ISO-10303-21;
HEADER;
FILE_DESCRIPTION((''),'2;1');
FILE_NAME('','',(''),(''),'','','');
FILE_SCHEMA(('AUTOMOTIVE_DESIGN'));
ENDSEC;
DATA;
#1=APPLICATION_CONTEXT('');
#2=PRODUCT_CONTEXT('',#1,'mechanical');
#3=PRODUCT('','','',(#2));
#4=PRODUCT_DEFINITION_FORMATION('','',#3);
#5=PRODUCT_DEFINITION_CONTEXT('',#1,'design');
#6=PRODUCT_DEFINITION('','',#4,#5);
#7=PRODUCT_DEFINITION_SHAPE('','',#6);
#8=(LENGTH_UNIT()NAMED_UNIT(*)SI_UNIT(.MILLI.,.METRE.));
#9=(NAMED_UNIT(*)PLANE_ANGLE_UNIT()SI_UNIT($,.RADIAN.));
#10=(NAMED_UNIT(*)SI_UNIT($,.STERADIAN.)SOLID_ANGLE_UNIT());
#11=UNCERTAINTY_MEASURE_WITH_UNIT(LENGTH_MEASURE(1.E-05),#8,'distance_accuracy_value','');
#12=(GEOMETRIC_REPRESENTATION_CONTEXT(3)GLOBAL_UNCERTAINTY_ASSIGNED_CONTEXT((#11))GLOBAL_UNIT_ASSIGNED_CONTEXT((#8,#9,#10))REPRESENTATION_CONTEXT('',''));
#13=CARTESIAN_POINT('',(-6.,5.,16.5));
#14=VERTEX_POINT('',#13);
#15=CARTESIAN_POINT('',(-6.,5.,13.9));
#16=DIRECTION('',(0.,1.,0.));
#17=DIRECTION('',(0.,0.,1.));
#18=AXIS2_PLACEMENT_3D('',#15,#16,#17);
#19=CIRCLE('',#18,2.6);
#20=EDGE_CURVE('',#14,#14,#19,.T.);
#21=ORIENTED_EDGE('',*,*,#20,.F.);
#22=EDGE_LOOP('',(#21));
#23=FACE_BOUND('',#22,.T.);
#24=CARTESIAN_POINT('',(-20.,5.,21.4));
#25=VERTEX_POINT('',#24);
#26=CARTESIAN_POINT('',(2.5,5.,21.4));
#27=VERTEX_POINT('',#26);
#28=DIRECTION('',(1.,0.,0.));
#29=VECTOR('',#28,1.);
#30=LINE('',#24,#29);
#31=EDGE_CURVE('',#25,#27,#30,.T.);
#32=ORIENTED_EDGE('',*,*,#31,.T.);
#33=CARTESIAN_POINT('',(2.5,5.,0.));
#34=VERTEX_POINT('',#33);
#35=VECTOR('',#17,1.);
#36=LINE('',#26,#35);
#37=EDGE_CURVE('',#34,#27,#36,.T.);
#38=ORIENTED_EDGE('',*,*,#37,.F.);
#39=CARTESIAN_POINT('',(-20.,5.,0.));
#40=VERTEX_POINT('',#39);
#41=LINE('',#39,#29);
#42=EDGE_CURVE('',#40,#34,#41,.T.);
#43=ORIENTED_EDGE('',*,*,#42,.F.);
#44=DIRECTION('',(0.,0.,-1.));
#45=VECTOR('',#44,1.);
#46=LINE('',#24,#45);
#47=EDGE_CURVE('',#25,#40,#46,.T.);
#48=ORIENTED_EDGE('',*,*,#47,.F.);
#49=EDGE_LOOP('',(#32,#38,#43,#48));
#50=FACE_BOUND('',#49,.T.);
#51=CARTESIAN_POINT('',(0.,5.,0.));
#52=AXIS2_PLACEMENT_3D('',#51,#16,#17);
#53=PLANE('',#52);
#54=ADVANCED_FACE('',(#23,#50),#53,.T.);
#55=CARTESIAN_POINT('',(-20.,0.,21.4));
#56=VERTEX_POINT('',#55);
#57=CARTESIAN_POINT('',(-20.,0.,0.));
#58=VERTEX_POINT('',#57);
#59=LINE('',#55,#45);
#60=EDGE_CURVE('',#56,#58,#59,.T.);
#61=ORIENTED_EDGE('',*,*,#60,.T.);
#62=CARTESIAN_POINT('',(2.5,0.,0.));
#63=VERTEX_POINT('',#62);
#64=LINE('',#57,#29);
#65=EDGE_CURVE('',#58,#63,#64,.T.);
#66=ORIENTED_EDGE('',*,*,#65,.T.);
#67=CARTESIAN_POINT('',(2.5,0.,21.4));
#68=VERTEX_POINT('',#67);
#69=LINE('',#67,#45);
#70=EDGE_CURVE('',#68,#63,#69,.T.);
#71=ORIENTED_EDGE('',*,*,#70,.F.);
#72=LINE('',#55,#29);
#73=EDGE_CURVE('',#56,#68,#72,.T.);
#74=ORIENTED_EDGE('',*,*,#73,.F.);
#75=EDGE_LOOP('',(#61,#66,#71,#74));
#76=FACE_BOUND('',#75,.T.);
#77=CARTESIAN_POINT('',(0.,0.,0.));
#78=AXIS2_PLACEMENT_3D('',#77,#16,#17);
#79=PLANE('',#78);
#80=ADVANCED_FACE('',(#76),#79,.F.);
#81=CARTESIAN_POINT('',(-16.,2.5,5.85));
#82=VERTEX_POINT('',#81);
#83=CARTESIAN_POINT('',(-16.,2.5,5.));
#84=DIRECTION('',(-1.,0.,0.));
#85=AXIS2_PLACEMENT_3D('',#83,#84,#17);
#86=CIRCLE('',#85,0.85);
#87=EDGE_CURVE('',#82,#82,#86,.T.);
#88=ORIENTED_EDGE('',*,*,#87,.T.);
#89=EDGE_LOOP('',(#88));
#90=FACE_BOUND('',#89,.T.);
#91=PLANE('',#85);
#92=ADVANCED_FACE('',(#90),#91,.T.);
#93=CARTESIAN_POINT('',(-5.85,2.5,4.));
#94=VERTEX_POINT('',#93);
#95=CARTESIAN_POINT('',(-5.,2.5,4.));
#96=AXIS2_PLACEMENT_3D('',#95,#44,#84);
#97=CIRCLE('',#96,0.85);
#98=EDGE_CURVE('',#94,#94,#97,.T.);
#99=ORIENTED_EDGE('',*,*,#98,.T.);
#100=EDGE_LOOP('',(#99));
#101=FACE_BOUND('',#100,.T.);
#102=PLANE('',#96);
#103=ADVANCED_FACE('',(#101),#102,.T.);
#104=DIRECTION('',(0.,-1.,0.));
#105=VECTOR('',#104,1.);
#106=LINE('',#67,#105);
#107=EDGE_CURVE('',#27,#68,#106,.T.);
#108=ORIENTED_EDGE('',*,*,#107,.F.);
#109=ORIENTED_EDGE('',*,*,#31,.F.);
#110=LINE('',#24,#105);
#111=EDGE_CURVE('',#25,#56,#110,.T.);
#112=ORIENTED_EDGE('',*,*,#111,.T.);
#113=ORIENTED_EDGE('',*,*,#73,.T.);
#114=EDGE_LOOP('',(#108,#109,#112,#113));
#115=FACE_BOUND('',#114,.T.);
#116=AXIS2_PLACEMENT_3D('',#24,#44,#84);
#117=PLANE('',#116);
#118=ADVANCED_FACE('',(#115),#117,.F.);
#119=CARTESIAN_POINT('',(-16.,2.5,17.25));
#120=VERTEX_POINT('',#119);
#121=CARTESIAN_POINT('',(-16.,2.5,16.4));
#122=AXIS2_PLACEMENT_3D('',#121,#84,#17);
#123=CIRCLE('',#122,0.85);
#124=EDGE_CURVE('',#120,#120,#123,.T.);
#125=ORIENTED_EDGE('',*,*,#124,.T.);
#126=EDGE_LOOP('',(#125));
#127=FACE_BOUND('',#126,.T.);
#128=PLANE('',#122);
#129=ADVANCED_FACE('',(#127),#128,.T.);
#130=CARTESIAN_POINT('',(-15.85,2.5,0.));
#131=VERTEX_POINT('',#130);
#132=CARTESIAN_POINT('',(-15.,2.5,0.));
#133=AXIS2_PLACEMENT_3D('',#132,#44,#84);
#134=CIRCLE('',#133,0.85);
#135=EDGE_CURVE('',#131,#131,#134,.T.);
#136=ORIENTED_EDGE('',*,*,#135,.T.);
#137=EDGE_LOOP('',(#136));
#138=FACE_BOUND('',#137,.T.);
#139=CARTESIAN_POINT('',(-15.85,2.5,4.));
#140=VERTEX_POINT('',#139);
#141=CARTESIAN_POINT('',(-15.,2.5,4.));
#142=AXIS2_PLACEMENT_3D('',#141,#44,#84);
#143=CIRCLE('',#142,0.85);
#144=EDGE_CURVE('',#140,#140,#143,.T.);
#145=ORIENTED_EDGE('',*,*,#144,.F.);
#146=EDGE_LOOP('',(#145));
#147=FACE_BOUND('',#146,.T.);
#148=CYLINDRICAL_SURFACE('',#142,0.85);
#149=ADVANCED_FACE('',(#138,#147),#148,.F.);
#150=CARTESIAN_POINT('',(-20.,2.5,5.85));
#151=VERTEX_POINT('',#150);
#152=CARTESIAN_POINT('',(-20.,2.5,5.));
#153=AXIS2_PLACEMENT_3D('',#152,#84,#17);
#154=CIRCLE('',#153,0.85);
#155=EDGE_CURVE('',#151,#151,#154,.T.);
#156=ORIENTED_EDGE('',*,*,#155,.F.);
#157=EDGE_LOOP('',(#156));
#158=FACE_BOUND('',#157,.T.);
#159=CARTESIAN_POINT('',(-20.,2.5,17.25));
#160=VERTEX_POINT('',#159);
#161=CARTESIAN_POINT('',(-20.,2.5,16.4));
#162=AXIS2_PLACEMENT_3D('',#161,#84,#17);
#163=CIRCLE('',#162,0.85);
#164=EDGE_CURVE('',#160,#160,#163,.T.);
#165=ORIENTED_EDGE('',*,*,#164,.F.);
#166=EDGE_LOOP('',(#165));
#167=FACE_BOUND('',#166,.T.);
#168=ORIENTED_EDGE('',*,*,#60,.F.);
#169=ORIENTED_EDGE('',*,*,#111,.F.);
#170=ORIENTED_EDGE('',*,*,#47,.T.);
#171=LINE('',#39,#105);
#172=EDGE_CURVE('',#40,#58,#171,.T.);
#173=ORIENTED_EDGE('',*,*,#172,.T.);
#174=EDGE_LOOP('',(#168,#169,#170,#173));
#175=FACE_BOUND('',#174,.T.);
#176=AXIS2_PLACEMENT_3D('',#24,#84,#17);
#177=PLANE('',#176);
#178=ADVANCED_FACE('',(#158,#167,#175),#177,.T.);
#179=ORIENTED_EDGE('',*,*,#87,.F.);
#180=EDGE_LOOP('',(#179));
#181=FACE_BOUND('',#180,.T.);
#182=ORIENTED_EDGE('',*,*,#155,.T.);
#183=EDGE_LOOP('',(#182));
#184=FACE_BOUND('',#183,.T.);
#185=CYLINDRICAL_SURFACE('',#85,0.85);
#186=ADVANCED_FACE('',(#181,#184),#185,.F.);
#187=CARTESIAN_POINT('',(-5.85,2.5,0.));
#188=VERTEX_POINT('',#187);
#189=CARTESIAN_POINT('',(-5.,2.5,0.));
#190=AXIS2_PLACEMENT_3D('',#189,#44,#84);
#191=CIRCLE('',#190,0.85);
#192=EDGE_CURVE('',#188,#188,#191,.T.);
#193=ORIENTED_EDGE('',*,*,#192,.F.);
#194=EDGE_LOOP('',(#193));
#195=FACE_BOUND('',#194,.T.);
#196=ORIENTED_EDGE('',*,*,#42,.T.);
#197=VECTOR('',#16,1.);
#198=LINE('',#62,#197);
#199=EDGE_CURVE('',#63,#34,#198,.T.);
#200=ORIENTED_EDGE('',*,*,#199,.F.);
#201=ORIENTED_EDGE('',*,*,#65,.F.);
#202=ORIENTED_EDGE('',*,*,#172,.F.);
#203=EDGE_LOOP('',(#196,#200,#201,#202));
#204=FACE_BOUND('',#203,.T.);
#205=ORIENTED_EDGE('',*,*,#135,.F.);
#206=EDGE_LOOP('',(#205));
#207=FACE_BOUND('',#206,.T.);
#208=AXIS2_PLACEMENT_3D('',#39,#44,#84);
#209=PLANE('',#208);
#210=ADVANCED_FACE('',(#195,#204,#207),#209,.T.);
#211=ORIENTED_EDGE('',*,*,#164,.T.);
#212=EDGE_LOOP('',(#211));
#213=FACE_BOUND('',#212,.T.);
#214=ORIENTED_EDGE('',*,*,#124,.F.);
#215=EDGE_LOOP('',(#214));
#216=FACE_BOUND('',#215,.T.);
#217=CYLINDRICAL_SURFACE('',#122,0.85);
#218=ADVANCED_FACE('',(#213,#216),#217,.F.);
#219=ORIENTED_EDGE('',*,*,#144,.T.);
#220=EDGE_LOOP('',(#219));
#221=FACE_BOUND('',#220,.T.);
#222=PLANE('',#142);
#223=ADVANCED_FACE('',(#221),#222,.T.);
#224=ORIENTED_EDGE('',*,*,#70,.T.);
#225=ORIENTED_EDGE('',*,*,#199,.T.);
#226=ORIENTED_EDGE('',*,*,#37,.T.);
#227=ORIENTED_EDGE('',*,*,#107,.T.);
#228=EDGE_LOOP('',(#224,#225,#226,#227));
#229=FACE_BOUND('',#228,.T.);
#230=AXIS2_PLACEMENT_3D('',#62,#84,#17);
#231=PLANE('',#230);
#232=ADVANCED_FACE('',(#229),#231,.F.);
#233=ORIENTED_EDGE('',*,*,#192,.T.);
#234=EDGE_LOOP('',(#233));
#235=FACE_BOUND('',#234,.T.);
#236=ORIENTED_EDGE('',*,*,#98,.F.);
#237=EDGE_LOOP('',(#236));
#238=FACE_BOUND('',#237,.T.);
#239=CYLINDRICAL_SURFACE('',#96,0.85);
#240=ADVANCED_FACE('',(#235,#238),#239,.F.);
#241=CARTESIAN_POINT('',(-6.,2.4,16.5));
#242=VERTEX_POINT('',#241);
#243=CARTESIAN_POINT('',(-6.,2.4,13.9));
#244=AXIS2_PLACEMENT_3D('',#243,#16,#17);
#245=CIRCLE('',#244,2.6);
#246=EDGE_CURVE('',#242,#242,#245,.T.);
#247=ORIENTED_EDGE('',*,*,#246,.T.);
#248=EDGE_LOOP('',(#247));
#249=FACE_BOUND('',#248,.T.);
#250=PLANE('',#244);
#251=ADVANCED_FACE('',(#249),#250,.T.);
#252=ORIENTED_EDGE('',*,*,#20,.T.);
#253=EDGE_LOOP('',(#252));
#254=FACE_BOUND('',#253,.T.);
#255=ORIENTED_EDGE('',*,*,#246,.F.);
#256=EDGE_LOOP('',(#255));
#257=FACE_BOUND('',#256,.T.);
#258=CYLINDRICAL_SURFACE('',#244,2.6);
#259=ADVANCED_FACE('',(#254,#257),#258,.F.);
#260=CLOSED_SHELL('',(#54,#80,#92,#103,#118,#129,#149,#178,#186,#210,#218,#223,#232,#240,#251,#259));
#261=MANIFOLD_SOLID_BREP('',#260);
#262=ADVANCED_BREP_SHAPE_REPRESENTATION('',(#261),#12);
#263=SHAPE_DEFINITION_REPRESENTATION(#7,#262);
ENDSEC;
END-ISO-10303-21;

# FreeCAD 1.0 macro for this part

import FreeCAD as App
import Part
import Sketcher


def add_polygon(sketch, points):
    """Adds a closed chain of lines whose ends are joined by coincident constraints."""
    first, n = sketch.GeometryCount, len(points)
    for a, b in zip(points, points[1:] + points[:1]):
        sketch.addGeometry(Part.LineSegment(App.Vector(*a, 0), App.Vector(*b, 0)), False)
    for i in range(n):
        sketch.addConstraint(Sketcher.Constraint("Coincident", first + i, 2, first + (i + 1) % n, 1))

doc = App.newDocument("Part")
params = doc.addObject("Spreadsheet::Sheet", "Params")
for row, (alias, value) in enumerate([
    ("sketch1_width", "20 mm"),
    ("sketch1_height", "21.4 mm"),
    ("pad1_length", "5 mm"),
    ("sketch2_diameter", "1.7 mm"),
    ("pocket1_length", "4 mm"),
    ("sketch3_diameter", "1.7 mm"),
    ("pocket2_length", "4 mm"),
    ("sketch4_width", "5 mm"),
    ("sketch4_height", "21.4 mm"),
    ("pad2_length", "2.5 mm"),
    ("sketch5_diameter", "5.2 mm"),
    ("pocket3_length", "2.6 mm"),
], start=1):
    params.set(f"A{row}", alias)
    params.set(f"B{row}", "=" + value)
    params.setAlias(f"B{row}", alias)

body = doc.addObject("PartDesign::Body", "Body")

# Sketch on XZ plane
sketch1 = body.newObject("Sketcher::SketchObject", "Sketch")
sketch1.AttachmentSupport = (doc.getObject("XZ_Plane"), [""])
sketch1.MapMode = "FlatFace"
add_polygon(sketch1, [(-20, 0), (-20, 21.4), (0, 21.4), (0, 0)])  # lines 0-3
sketch1.addConstraint([
    Sketcher.Constraint("Vertical", 0),
    Sketcher.Constraint("Horizontal", 1),
    Sketcher.Constraint("Vertical", 2),
    Sketcher.Constraint("Horizontal", 3),
    Sketcher.Constraint("Coincident", 2, 2, -1, 1),
    Sketcher.Constraint("DistanceX", 1, 1, 1, 2, 20.0),
    Sketcher.Constraint("DistanceY", 0, 1, 0, 2, 21.4),
])
sketch1.setExpression("Constraints[9]", "Params.sketch1_width")
sketch1.setExpression("Constraints[10]", "Params.sketch1_height")
pad1 = body.newObject("PartDesign::Pad", "Pad")
pad1.Profile = sketch1
pad1.setExpression("Length", "Params.pad1_length")
pad1.Reversed = True

# Sketch on YZ plane
sketch2 = body.newObject("Sketcher::SketchObject", "Sketch001")
sketch2.AttachmentSupport = (doc.getObject("YZ_Plane"), [""])
sketch2.MapMode = "FlatFace"
sketch2.AttachmentOffset = App.Placement(App.Vector(0, 0, -20), App.Rotation())
sketch2.addGeometry([
    Part.Circle(App.Vector(2.5, 16.4, 0), App.Vector(0, 0, 1), 0.85),
    Part.Circle(App.Vector(2.5, 5, 0), App.Vector(0, 0, 1), 0.85),
], False)
sketch2.addConstraint([
    Sketcher.Constraint("Equal", 0, 1),
    Sketcher.Constraint("Vertical", 0, 3, 1, 3),
    Sketcher.Constraint("Diameter", 0, 1.7),
    Sketcher.Constraint("DistanceY", -1, 1, 1, 3, 5.0),
    Sketcher.Constraint("DistanceX", -1, 1, 0, 3, 2.5),
    Sketcher.Constraint("DistanceY", -1, 1, 0, 3, 16.4),
])
sketch2.setExpression("Constraints[2]", "Params.sketch2_diameter")
pocket1 = body.newObject("PartDesign::Pocket", "Pocket")
pocket1.Profile = sketch2
pocket1.setExpression("Length", "Params.pocket1_length")
pocket1.Reversed = True

# Sketch on XY plane
sketch3 = body.newObject("Sketcher::SketchObject", "Sketch002")
sketch3.AttachmentSupport = (doc.getObject("XY_Plane"), [""])
sketch3.MapMode = "FlatFace"
sketch3.addGeometry([
    Part.Circle(App.Vector(-15, 2.5, 0), App.Vector(0, 0, 1), 0.85),
    Part.Circle(App.Vector(-5, 2.5, 0), App.Vector(0, 0, 1), 0.85),
], False)
sketch3.addConstraint([
    Sketcher.Constraint("Equal", 0, 1),
    Sketcher.Constraint("Horizontal", 0, 3, 1, 3),
    Sketcher.Constraint("Diameter", 0, 1.7),
    Sketcher.Constraint("DistanceX", 0, 3, -1, 1, 15.0),
    Sketcher.Constraint("DistanceX", 1, 3, -1, 1, 5.0),
    Sketcher.Constraint("DistanceY", -1, 1, 0, 3, 2.5),
])
sketch3.setExpression("Constraints[2]", "Params.sketch3_diameter")
pocket2 = body.newObject("PartDesign::Pocket", "Pocket001")
pocket2.Profile = sketch3
pocket2.setExpression("Length", "Params.pocket2_length")
pocket2.Reversed = True

# Sketch on YZ plane
sketch4 = body.newObject("Sketcher::SketchObject", "Sketch003")
sketch4.AttachmentSupport = (doc.getObject("YZ_Plane"), [""])
sketch4.MapMode = "FlatFace"
add_polygon(sketch4, [(5, 21.4), (0, 21.4), (0, 0), (5, 0)])  # lines 0-3
sketch4.addConstraint([
    Sketcher.Constraint("Horizontal", 0),
    Sketcher.Constraint("Vertical", 1),
    Sketcher.Constraint("Horizontal", 2),
    Sketcher.Constraint("Vertical", 3),
    Sketcher.Constraint("Coincident", 1, 2, -1, 1),
    Sketcher.Constraint("DistanceX", 0, 2, 0, 1, 5.0),
    Sketcher.Constraint("DistanceY", 1, 2, 1, 1, 21.4),
])
sketch4.setExpression("Constraints[9]", "Params.sketch4_width")
sketch4.setExpression("Constraints[10]", "Params.sketch4_height")
pad2 = body.newObject("PartDesign::Pad", "Pad001")
pad2.Profile = sketch4
pad2.setExpression("Length", "Params.pad2_length")

# Sketch on XZ plane
sketch5 = body.newObject("Sketcher::SketchObject", "Sketch004")
sketch5.AttachmentSupport = (doc.getObject("XZ_Plane"), [""])
sketch5.MapMode = "FlatFace"
sketch5.AttachmentOffset = App.Placement(App.Vector(0, 0, -5), App.Rotation())
sketch5.addGeometry(Part.Circle(App.Vector(-6, 13.9, 0), App.Vector(0, 0, 1), 2.6), False)
sketch5.addConstraint([
    Sketcher.Constraint("Diameter", 0, 5.2),
    Sketcher.Constraint("DistanceX", 0, 3, -1, 1, 6.0),
    Sketcher.Constraint("DistanceY", -1, 1, 0, 3, 13.9),
])
sketch5.setExpression("Constraints[0]", "Params.sketch5_diameter")
pocket3 = body.newObject("PartDesign::Pocket", "Pocket002")
pocket3.Profile = sketch5
pocket3.setExpression("Length", "Params.pocket3_length")
pocket3.Reversed = True

doc.recompute()
